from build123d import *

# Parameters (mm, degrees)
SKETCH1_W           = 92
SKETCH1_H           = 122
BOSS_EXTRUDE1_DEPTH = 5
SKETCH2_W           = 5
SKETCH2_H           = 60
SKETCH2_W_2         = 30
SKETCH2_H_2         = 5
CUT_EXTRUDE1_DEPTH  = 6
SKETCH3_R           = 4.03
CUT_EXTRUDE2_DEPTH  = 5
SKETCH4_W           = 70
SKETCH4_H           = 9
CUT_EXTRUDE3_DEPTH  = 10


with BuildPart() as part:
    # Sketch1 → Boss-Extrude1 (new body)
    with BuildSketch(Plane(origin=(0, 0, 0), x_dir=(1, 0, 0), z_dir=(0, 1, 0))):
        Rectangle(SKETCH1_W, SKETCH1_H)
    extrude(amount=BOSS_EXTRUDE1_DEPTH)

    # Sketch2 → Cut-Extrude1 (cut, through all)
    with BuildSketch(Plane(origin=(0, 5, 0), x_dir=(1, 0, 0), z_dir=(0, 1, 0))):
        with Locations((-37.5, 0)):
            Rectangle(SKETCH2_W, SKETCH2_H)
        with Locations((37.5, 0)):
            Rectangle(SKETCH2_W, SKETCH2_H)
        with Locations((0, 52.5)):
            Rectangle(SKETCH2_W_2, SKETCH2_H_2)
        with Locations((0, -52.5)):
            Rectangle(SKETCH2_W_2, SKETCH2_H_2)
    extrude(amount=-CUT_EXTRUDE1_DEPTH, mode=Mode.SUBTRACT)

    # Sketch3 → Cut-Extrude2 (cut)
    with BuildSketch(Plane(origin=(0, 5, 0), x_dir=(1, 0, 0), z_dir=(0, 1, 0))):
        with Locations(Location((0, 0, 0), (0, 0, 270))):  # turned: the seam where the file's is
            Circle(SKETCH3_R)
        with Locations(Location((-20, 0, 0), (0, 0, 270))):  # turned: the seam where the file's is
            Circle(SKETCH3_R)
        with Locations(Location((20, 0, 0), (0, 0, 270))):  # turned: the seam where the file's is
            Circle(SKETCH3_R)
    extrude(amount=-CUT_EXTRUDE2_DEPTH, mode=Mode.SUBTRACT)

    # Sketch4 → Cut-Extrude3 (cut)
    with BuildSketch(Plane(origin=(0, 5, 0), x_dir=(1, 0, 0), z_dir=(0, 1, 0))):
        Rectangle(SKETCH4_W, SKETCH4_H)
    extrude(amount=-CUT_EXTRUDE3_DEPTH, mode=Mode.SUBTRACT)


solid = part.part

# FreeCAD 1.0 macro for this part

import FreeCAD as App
import Part
import Sketcher
Q = App.Units.Quantity

doc = App.newDocument("Part")
params = doc.addObject("Spreadsheet::Sheet", "Params")
for row, (alias, value) in enumerate([
    ("sketch1_width", "92 mm"),
    ("sketch1_height", "122 mm"),
    ("pad1_length", "5 mm"),
    ("sketch2_width", "5 mm"),
    ("sketch2_width2", "30 mm"),
    ("sketch2_height", "60 mm"),
    ("sketch3_diameter", "8.06 mm"),
    ("pocket2_length", "5 mm"),
    ("sketch4_width", "70 mm"),
    ("sketch4_height", "9 mm"),
    ("pocket3_length", "10 mm"),
], start=1):
    params.set(f"A{row}", alias)
    params.set(f"B{row}", "=" + value)
    params.setAlias(f"B{row}", alias)

body = doc.addObject("PartDesign::Body", "Body")

sketch1 = body.newObject("Sketcher::SketchObject", "Sketch")
sketch1.AttachmentSupport = (doc.getObject("XZ_Plane"), [""])
sketch1.MapMode = "FlatFace"
sketch1.addGeometry(Part.LineSegment(App.Vector(-46, -61, 0), App.Vector(-46, 61, 0)), False)
sketch1.addGeometry(Part.LineSegment(App.Vector(-46, 61, 0), App.Vector(46, 61, 0)), False)
sketch1.addGeometry(Part.LineSegment(App.Vector(46, 61, 0), App.Vector(46, -61, 0)), False)
sketch1.addGeometry(Part.LineSegment(App.Vector(46, -61, 0), App.Vector(-46, -61, 0)), False)
sketch1.addConstraint(Sketcher.Constraint("Coincident", 0, 2, 1, 1))
sketch1.addConstraint(Sketcher.Constraint("Coincident", 1, 2, 2, 1))
sketch1.addConstraint(Sketcher.Constraint("Coincident", 2, 2, 3, 1))
sketch1.addConstraint(Sketcher.Constraint("Coincident", 3, 2, 0, 1))
sketch1.addConstraint(Sketcher.Constraint("Vertical", 0))
sketch1.addConstraint(Sketcher.Constraint("Horizontal", 1))
sketch1.addConstraint(Sketcher.Constraint("Vertical", 2))
sketch1.addConstraint(Sketcher.Constraint("Horizontal", 3))
sketch1.addConstraint(Sketcher.Constraint("Symmetric", 0, 2, 2, 2, -1, 1))
sketch1.addConstraint(Sketcher.Constraint("DistanceX", 1, 1, 1, 2, Q("92 mm")))
sketch1.addConstraint(Sketcher.Constraint("DistanceY", 0, 1, 0, 2, Q("122 mm")))
sketch1.setExpression("Constraints[9]", "Params.sketch1_width")
sketch1.setExpression("Constraints[10]", "Params.sketch1_height")
pad1 = body.newObject("PartDesign::Pad", "Pad")
pad1.Profile = sketch1
pad1.setExpression("Length", "Params.pad1_length")
pad1.Reversed = True

sketch2 = body.newObject("Sketcher::SketchObject", "Sketch001")
sketch2.AttachmentSupport = (doc.getObject("XZ_Plane"), [""])
sketch2.MapMode = "FlatFace"
sketch2.AttachmentOffset = App.Placement(App.Vector(0, 0, -5), App.Rotation())
sketch2.addGeometry(Part.LineSegment(App.Vector(-40, -30, 0), App.Vector(-40, 30, 0)), False)
sketch2.addGeometry(Part.LineSegment(App.Vector(-40, 30, 0), App.Vector(-35, 30, 0)), False)
sketch2.addGeometry(Part.LineSegment(App.Vector(-35, 30, 0), App.Vector(-35, -30, 0)), False)
sketch2.addGeometry(Part.LineSegment(App.Vector(-35, -30, 0), App.Vector(-40, -30, 0)), False)
sketch2.addGeometry(Part.LineSegment(App.Vector(35, -30, 0), App.Vector(35, 30, 0)), False)
sketch2.addGeometry(Part.LineSegment(App.Vector(35, 30, 0), App.Vector(40, 30, 0)), False)
sketch2.addGeometry(Part.LineSegment(App.Vector(40, 30, 0), App.Vector(40, -30, 0)), False)
sketch2.addGeometry(Part.LineSegment(App.Vector(40, -30, 0), App.Vector(35, -30, 0)), False)
sketch2.addGeometry(Part.LineSegment(App.Vector(-15, -55, 0), App.Vector(-15, -50, 0)), False)
sketch2.addGeometry(Part.LineSegment(App.Vector(-15, -50, 0), App.Vector(15, -50, 0)), False)
sketch2.addGeometry(Part.LineSegment(App.Vector(15, -50, 0), App.Vector(15, -55, 0)), False)
sketch2.addGeometry(Part.LineSegment(App.Vector(15, -55, 0), App.Vector(-15, -55, 0)), False)
sketch2.addGeometry(Part.LineSegment(App.Vector(-15, 50, 0), App.Vector(-15, 55, 0)), False)
sketch2.addGeometry(Part.LineSegment(App.Vector(-15, 55, 0), App.Vector(15, 55, 0)), False)
sketch2.addGeometry(Part.LineSegment(App.Vector(15, 55, 0), App.Vector(15, 50, 0)), False)
sketch2.addGeometry(Part.LineSegment(App.Vector(15, 50, 0), App.Vector(-15, 50, 0)), False)
sketch2.addConstraint(Sketcher.Constraint("Coincident", 0, 2, 1, 1))
sketch2.addConstraint(Sketcher.Constraint("Coincident", 1, 2, 2, 1))
sketch2.addConstraint(Sketcher.Constraint("Coincident", 2, 2, 3, 1))
sketch2.addConstraint(Sketcher.Constraint("Coincident", 3, 2, 0, 1))
sketch2.addConstraint(Sketcher.Constraint("Coincident", 4, 2, 5, 1))
sketch2.addConstraint(Sketcher.Constraint("Coincident", 5, 2, 6, 1))
sketch2.addConstraint(Sketcher.Constraint("Coincident", 6, 2, 7, 1))
sketch2.addConstraint(Sketcher.Constraint("Coincident", 7, 2, 4, 1))
sketch2.addConstraint(Sketcher.Constraint("Coincident", 8, 2, 9, 1))
sketch2.addConstraint(Sketcher.Constraint("Coincident", 9, 2, 10, 1))
sketch2.addConstraint(Sketcher.Constraint("Coincident", 10, 2, 11, 1))
sketch2.addConstraint(Sketcher.Constraint("Coincident", 11, 2, 8, 1))
sketch2.addConstraint(Sketcher.Constraint("Coincident", 12, 2, 13, 1))
sketch2.addConstraint(Sketcher.Constraint("Coincident", 13, 2, 14, 1))
sketch2.addConstraint(Sketcher.Constraint("Coincident", 14, 2, 15, 1))
sketch2.addConstraint(Sketcher.Constraint("Coincident", 15, 2, 12, 1))
sketch2.addConstraint(Sketcher.Constraint("Vertical", 0))
sketch2.addConstraint(Sketcher.Constraint("Horizontal", 1))
sketch2.addConstraint(Sketcher.Constraint("Vertical", 2))
sketch2.addConstraint(Sketcher.Constraint("Horizontal", 3))
sketch2.addConstraint(Sketcher.Constraint("Vertical", 4))
sketch2.addConstraint(Sketcher.Constraint("Horizontal", 5))
sketch2.addConstraint(Sketcher.Constraint("Vertical", 6))
sketch2.addConstraint(Sketcher.Constraint("Horizontal", 7))
sketch2.addConstraint(Sketcher.Constraint("Vertical", 8))
sketch2.addConstraint(Sketcher.Constraint("Horizontal", 9))
sketch2.addConstraint(Sketcher.Constraint("Vertical", 10))
sketch2.addConstraint(Sketcher.Constraint("Horizontal", 11))
sketch2.addConstraint(Sketcher.Constraint("Vertical", 12))
sketch2.addConstraint(Sketcher.Constraint("Horizontal", 13))
sketch2.addConstraint(Sketcher.Constraint("Vertical", 14))
sketch2.addConstraint(Sketcher.Constraint("Horizontal", 15))
sketch2.addConstraint(Sketcher.Constraint("Symmetric", 2, 2, 4, 2, -1, 1))
sketch2.addConstraint(Sketcher.Constraint("Symmetric", 0, 2, 6, 2, -1, 1))
sketch2.addConstraint(Sketcher.Constraint("Symmetric", 10, 2, 12, 2, -1, 1))
sketch2.addConstraint(Sketcher.Constraint("Symmetric", 8, 2, 14, 2, -1, 1))
sketch2.addConstraint(Sketcher.Constraint("Horizontal", 1, 2, 4, 2))
sketch2.addConstraint(Sketcher.Constraint("Vertical", 11, 2, 12, 2))
sketch2.addConstraint(Sketcher.Constraint("Equal", 7, 8))
sketch2.addConstraint(Sketcher.Constraint("DistanceX", 1, 1, 1, 2, Q("5 mm")))
sketch2.addConstraint(Sketcher.Constraint("DistanceX", 9, 1, 9, 2, Q("30 mm")))
sketch2.addConstraint(Sketcher.Constraint("DistanceY", 0, 1, 0, 2, Q("60 mm")))
sketch2.addConstraint(Sketcher.Constraint("DistanceX", 0, 2, -1, 1, Q("40 mm")))
sketch2.addConstraint(Sketcher.Constraint("DistanceY", 8, 2, -1, 1, Q("50 mm")))
sketch2.setExpression("Constraints[39]", "Params.sketch2_width")
sketch2.setExpression("Constraints[40]", "Params.sketch2_width2")
sketch2.setExpression("Constraints[41]", "Params.sketch2_height")
pocket1 = body.newObject("PartDesign::Pocket", "Pocket")
pocket1.Profile = sketch2
pocket1.Type = "ThroughAll"
pocket1.Reversed = True

sketch3 = body.newObject("Sketcher::SketchObject", "Sketch002")
sketch3.AttachmentSupport = (doc.getObject("XZ_Plane"), [""])
sketch3.MapMode = "FlatFace"
sketch3.AttachmentOffset = App.Placement(App.Vector(0, 0, -5), App.Rotation())
sketch3.addGeometry(Part.Circle(App.Vector(0, 0, 0), App.Vector(0, 0, 1), 4), False)
sketch3.addGeometry(Part.Circle(App.Vector(-20, 0, 0), App.Vector(0, 0, 1), 4), False)
sketch3.addGeometry(Part.Circle(App.Vector(20, 0, 0), App.Vector(0, 0, 1), 4), False)
sketch3.addConstraint(Sketcher.Constraint("Coincident", 0, 3, -1, 1))
sketch3.addConstraint(Sketcher.Constraint("Equal", 0, 1))
sketch3.addConstraint(Sketcher.Constraint("Equal", 1, 2))
sketch3.addConstraint(Sketcher.Constraint("Symmetric", 1, 3, 2, 3, -1, 1))
sketch3.addConstraint(Sketcher.Constraint("PointOnObject", 1, 3, -1))
sketch3.addConstraint(Sketcher.Constraint("Diameter", 0, Q("8.06 mm")))
sketch3.addConstraint(Sketcher.Constraint("DistanceX", 1, 3, -1, 1, Q("20 mm")))
sketch3.setExpression("Constraints[5]", "Params.sketch3_diameter")
pocket2 = body.newObject("PartDesign::Pocket", "Pocket001")
pocket2.Profile = sketch3
pocket2.setExpression("Length", "Params.pocket2_length")
pocket2.Reversed = True

sketch4 = body.newObject("Sketcher::SketchObject", "Sketch003")
sketch4.AttachmentSupport = (doc.getObject("XZ_Plane"), [""])
sketch4.MapMode = "FlatFace"
sketch4.AttachmentOffset = App.Placement(App.Vector(0, 0, -5), App.Rotation())
sketch4.addGeometry(Part.LineSegment(App.Vector(-35, -4, 0), App.Vector(-35, 4, 0)), False)
sketch4.addGeometry(Part.LineSegment(App.Vector(-35, 4, 0), App.Vector(35, 4, 0)), False)
sketch4.addGeometry(Part.LineSegment(App.Vector(35, 4, 0), App.Vector(35, -4, 0)), False)
sketch4.addGeometry(Part.LineSegment(App.Vector(35, -4, 0), App.Vector(-35, -4, 0)), False)
sketch4.addConstraint(Sketcher.Constraint("Coincident", 0, 2, 1, 1))
sketch4.addConstraint(Sketcher.Constraint("Coincident", 1, 2, 2, 1))
sketch4.addConstraint(Sketcher.Constraint("Coincident", 2, 2, 3, 1))
sketch4.addConstraint(Sketcher.Constraint("Coincident", 3, 2, 0, 1))
sketch4.addConstraint(Sketcher.Constraint("Vertical", 0))
sketch4.addConstraint(Sketcher.Constraint("Horizontal", 1))
sketch4.addConstraint(Sketcher.Constraint("Vertical", 2))
sketch4.addConstraint(Sketcher.Constraint("Horizontal", 3))
sketch4.addConstraint(Sketcher.Constraint("Symmetric", 0, 2, 2, 2, -1, 1))
sketch4.addConstraint(Sketcher.Constraint("DistanceX", 1, 1, 1, 2, Q("70 mm")))
sketch4.addConstraint(Sketcher.Constraint("DistanceY", 0, 1, 0, 2, Q("9 mm")))
sketch4.setExpression("Constraints[9]", "Params.sketch4_width")
sketch4.setExpression("Constraints[10]", "Params.sketch4_height")
pocket3 = body.newObject("PartDesign::Pocket", "Pocket002")
pocket3.Profile = sketch4
pocket3.setExpression("Length", "Params.pocket3_length")
pocket3.Reversed = True

doc.recompute()
